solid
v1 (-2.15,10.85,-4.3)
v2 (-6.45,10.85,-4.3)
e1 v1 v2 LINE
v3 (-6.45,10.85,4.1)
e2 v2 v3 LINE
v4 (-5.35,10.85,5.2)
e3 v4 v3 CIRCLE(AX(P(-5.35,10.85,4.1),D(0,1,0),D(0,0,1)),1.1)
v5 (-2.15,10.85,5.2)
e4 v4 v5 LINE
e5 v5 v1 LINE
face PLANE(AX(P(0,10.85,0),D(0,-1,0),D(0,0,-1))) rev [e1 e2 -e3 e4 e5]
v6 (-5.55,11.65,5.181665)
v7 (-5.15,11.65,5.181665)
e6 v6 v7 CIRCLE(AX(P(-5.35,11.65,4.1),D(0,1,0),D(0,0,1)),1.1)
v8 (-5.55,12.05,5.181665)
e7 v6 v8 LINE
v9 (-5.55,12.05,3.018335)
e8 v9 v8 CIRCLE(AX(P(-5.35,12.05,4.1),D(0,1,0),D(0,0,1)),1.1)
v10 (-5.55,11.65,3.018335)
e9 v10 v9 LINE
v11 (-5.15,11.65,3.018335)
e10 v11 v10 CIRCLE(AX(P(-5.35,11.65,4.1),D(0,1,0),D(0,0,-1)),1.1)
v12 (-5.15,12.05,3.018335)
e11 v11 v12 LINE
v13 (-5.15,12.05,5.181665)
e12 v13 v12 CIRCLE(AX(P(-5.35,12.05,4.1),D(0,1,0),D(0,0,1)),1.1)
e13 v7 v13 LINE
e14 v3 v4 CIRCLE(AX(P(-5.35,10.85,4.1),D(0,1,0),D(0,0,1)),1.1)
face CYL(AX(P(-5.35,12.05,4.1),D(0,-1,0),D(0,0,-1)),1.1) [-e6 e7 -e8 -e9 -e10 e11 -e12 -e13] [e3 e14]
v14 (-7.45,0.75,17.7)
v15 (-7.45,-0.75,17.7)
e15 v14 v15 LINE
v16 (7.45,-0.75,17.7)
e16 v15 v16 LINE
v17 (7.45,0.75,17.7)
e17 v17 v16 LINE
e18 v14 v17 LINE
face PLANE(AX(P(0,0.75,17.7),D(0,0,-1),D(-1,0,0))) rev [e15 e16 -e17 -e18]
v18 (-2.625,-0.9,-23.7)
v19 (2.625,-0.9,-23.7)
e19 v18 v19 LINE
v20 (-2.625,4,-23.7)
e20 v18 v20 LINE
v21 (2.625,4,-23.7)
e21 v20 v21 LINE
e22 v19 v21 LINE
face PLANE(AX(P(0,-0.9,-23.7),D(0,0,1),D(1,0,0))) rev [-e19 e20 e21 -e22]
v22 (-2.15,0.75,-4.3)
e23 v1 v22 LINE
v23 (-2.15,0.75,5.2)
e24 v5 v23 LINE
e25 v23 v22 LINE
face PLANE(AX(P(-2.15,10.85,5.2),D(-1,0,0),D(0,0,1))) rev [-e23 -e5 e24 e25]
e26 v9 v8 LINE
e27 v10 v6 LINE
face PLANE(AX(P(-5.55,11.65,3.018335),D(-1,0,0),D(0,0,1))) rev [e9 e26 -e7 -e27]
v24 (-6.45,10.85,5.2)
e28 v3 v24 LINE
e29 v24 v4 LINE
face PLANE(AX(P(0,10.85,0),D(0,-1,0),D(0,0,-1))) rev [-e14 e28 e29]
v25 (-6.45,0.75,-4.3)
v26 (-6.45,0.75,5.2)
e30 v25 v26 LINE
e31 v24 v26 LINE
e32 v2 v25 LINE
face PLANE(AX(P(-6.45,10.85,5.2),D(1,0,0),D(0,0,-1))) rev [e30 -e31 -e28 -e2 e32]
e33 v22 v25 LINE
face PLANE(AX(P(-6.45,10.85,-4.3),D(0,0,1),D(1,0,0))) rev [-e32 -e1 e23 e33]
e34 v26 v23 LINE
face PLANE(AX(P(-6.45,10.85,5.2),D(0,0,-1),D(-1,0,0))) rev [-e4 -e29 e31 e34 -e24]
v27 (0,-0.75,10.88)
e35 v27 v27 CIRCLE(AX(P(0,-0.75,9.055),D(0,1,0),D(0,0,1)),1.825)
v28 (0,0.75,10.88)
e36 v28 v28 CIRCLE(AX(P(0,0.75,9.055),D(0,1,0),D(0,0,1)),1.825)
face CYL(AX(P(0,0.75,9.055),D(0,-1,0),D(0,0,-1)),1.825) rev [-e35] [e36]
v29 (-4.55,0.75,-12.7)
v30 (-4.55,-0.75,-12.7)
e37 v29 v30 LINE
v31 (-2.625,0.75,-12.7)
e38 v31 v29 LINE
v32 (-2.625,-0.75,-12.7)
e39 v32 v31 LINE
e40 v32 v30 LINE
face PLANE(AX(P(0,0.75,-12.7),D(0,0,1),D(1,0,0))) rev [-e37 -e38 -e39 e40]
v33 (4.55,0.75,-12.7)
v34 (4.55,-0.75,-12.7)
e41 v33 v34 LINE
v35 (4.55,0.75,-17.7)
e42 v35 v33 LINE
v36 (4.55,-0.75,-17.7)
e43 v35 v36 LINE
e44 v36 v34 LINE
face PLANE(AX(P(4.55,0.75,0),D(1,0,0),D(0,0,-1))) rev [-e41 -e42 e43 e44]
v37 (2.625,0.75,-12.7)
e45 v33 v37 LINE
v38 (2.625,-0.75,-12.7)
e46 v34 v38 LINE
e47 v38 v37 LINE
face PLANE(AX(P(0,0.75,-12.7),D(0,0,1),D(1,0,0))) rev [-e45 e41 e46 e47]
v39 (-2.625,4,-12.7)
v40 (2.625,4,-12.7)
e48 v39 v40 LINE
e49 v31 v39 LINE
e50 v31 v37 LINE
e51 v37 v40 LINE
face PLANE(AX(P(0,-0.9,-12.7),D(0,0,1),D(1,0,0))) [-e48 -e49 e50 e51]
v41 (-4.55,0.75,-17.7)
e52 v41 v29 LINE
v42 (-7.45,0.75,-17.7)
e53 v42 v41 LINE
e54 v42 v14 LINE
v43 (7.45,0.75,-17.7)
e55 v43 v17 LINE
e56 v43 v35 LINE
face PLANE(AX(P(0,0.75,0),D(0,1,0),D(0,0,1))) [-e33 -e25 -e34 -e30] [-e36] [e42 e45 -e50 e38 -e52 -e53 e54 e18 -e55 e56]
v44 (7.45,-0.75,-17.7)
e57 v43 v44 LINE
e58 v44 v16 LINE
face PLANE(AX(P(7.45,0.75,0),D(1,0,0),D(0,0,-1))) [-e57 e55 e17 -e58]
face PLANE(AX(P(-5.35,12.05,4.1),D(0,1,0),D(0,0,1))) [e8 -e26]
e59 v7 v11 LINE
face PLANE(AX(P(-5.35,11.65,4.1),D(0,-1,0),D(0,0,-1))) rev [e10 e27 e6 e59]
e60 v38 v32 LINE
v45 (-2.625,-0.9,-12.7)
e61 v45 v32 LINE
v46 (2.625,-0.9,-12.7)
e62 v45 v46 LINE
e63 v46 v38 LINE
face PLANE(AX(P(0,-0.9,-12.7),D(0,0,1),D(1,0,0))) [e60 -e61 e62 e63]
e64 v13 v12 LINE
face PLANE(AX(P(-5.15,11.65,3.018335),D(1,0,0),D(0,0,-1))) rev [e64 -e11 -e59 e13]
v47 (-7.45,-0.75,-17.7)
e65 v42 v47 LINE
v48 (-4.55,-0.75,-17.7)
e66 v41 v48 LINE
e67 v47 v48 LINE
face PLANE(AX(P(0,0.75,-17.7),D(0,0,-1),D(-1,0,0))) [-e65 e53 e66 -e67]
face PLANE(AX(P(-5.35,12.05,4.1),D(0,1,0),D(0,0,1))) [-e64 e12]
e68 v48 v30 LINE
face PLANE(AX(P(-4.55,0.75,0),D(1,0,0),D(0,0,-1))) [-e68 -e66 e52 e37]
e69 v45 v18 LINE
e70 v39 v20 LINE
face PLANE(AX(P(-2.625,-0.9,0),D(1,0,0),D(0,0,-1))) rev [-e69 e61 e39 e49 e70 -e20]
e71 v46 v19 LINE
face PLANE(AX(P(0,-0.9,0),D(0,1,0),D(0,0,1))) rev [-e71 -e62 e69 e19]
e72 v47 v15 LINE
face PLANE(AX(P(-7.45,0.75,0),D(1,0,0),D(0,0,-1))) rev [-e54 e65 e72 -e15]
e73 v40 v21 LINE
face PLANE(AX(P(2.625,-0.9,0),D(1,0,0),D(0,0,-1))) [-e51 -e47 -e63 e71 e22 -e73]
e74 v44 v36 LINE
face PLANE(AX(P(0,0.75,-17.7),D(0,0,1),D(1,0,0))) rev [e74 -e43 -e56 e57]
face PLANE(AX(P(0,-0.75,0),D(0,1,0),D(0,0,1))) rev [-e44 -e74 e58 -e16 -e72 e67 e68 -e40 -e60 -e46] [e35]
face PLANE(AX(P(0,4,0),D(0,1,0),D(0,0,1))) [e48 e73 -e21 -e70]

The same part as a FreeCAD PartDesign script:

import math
import FreeCAD as App
import Part
import Sketcher

V = App.Vector


def add_polygon(sketch, points):
    """Adds a closed chain of lines whose ends are joined by coincident constraints."""
    first, n = sketch.GeometryCount, len(points)
    for a, b in zip(points, points[1:] + points[:1]):
        sketch.addGeometry(Part.LineSegment(App.Vector(*a, 0), App.Vector(*b, 0)), False)
    for i in range(n):
        sketch.addConstraint(Sketcher.Constraint("Coincident", first + i, 2, first + (i + 1) % n, 1))

doc = App.newDocument("Part")
params = doc.addObject("Spreadsheet::Sheet", "Params")
for row, (alias, value) in enumerate([
    ("sketch1_diameter", "3.65 mm"),
    ("sketch1_height", "5 mm"),
    ("sketch1_width", "2.9 mm"),
    ("sketch1_width2", "14.9 mm"),
    ("sketch1_height2", "35.4 mm"),
    ("pad1_length", "1.5 mm"),
    ("sketch2_height", "11 mm"),
    ("sketch2_width", "5.25 mm"),
    ("pad2_length", "4 mm"),
    ("pad2_length2", "0.9 mm"),
    ("sketch3_width", "4.3 mm"),
    ("sketch3_height", "9.5 mm"),
    ("pad3_length", "10.1 mm"),
    ("sketch4_diameter", "2.2 mm"),
    ("pad4_length", "1.2 mm"),
    ("sketch5_radius", "1.1 mm"),
    ("pocket1_length", "0.4 mm"),
], start=1):
    params.set(f"A{row}", alias)
    params.set(f"B{row}", "=" + value)
    params.setAlias(f"B{row}", alias)

body = doc.addObject("PartDesign::Body", "Body")

# Sketch on XZ plane
sketch1 = body.newObject("Sketcher::SketchObject", "Sketch")
sketch1.AttachmentSupport = (doc.getObject("XZ_Plane"), [""])
sketch1.MapMode = "FlatFace"
add_polygon(sketch1, [(-4.55, -12.7), (-4.55, -17.7), (-7.45, -17.7), (-7.45, 17.7), (7.45, 17.7), (7.45, -17.7), (4.55, -17.7), (4.55, -12.7)])  # lines 0-7
sketch1.addGeometry(Part.Circle(V(0, 9.055, 0), V(0, 0, 1), 1.825), False)  # 8
sketch1.addConstraint([
    Sketcher.Constraint("Vertical", 0),
    Sketcher.Constraint("Horizontal", 1),
    Sketcher.Constraint("Vertical", 2),
    Sketcher.Constraint("Horizontal", 3),
    Sketcher.Constraint("Vertical", 4),
    Sketcher.Constraint("Horizontal", 5),
    Sketcher.Constraint("Vertical", 6),
    Sketcher.Constraint("Horizontal", 7),
    Sketcher.Constraint("Symmetric", 1, 2, 3, 2, -1, 1),
    Sketcher.Constraint("Symmetric", 0, 2, 5, 2, -2),
    Sketcher.Constraint("PointOnObject", 8, 3, -2),
    Sketcher.Constraint("Diameter", 8, 3.65),
    Sketcher.Constraint("DistanceY", 0, 2, 0, 1, 5.0),
    Sketcher.Constraint("DistanceX", 1, 2, 1, 1, 2.9),
    Sketcher.Constraint("DistanceX", 3, 1, 3, 2, 14.9),
    Sketcher.Constraint("DistanceY", 2, 1, 2, 2, 35.4),
    Sketcher.Constraint("DistanceY", -1, 1, 8, 3, 9.055),
])
sketch1.setExpression("Constraints[19]", "Params.sketch1_diameter")
sketch1.setExpression("Constraints[20]", "Params.sketch1_height")
sketch1.setExpression("Constraints[21]", "Params.sketch1_width")
sketch1.setExpression("Constraints[22]", "Params.sketch1_width2")
sketch1.setExpression("Constraints[23]", "Params.sketch1_height2")
pad1 = body.newObject("PartDesign::Pad", "Pad")
pad1.Profile = sketch1
pad1.setExpression("Length", "Params.pad1_length")
pad1.Midplane = True

# Sketch on XZ plane
sketch2 = body.newObject("Sketcher::SketchObject", "Sketch001")
sketch2.AttachmentSupport = (doc.getObject("XZ_Plane"), [""])
sketch2.MapMode = "FlatFace"
add_polygon(sketch2, [(-2.625, -23.7), (-2.625, -12.7), (2.625, -12.7), (2.625, -23.7)])  # lines 0-3
sketch2.addConstraint([
    Sketcher.Constraint("Vertical", 0),
    Sketcher.Constraint("Horizontal", 1),
    Sketcher.Constraint("Vertical", 2),
    Sketcher.Constraint("Horizontal", 3),
    Sketcher.Constraint("DistanceY", 0, 1, 0, 2, 11.0),
    Sketcher.Constraint("DistanceX", 1, 1, 1, 2, 5.25),
    Sketcher.Constraint("DistanceY", 0, 2, -1, 1, 12.7),
    Sketcher.Constraint("DistanceX", 0, 2, -1, 1, 2.625),
])
sketch2.setExpression("Constraints[8]", "Params.sketch2_height")
sketch2.setExpression("Constraints[9]", "Params.sketch2_width")
pad2 = body.newObject("PartDesign::Pad", "Pad001")
pad2.Profile = sketch2
pad2.Type = "TwoLengths"
pad2.setExpression("Length", "Params.pad2_length")
pad2.setExpression("Length2", "Params.pad2_length2")
pad2.Reversed = True

# Sketch on XZ plane
sketch3 = body.newObject("Sketcher::SketchObject", "Sketch002")
sketch3.AttachmentSupport = (doc.getObject("XZ_Plane"), [""])
sketch3.MapMode = "FlatFace"
sketch3.AttachmentOffset = App.Placement(V(0, 0, -0.75), App.Rotation())
add_polygon(sketch3, [(-6.45, -4.3), (-6.45, 5.2), (-2.15, 5.2), (-2.15, -4.3)])  # lines 0-3
sketch3.addConstraint([
    Sketcher.Constraint("Vertical", 0),
    Sketcher.Constraint("Horizontal", 1),
    Sketcher.Constraint("Vertical", 2),
    Sketcher.Constraint("Horizontal", 3),
    Sketcher.Constraint("DistanceX", 1, 1, 1, 2, 4.3),
    Sketcher.Constraint("DistanceY", 0, 1, 0, 2, 9.5),
    Sketcher.Constraint("DistanceY", -1, 1, 0, 2, 5.2),
    Sketcher.Constraint("DistanceX", 0, 2, -1, 1, 6.45),
])
sketch3.setExpression("Constraints[8]", "Params.sketch3_width")
sketch3.setExpression("Constraints[9]", "Params.sketch3_height")
pad3 = body.newObject("PartDesign::Pad", "Pad002")
pad3.Profile = sketch3
pad3.setExpression("Length", "Params.pad3_length")
pad3.Reversed = True

# Sketch on XZ plane
sketch4 = body.newObject("Sketcher::SketchObject", "Sketch003")
sketch4.AttachmentSupport = (doc.getObject("XZ_Plane"), [""])
sketch4.MapMode = "FlatFace"
sketch4.AttachmentOffset = App.Placement(V(0, 0, -10.85), App.Rotation())
sketch4.addGeometry(Part.Circle(V(-5.35, 4.1, 0), V(0, 0, 1), 1.1), False)
sketch4.addConstraint([
    Sketcher.Constraint("Diameter", 0, 2.2),
    Sketcher.Constraint("DistanceY", -1, 1, 0, 3, 4.1),
    Sketcher.Constraint("DistanceX", 0, 3, -1, 1, 5.35),
])
sketch4.setExpression("Constraints[0]", "Params.sketch4_diameter")
pad4 = body.newObject("PartDesign::Pad", "Pad003")
pad4.Profile = sketch4
pad4.setExpression("Length", "Params.pad4_length")
pad4.Reversed = True

# Sketch on XZ plane
sketch5 = body.newObject("Sketcher::SketchObject", "Sketch004")
sketch5.AttachmentSupport = (doc.getObject("XZ_Plane"), [""])
sketch5.MapMode = "FlatFace"
sketch5.AttachmentOffset = App.Placement(V(0, 0, -12.05), App.Rotation())
sketch5.addGeometry([
    Part.LineSegment(V(-5.15, 5.181665, 0), V(-5.15, 3.018335, 0)),
    Part.ArcOfCircle(Part.Circle(V(-5.35, 4.1, 0), V(0, 0, 1), 1.1), math.radians(-100.475681), math.radians(-79.524319)),
    Part.LineSegment(V(-5.55, 3.018335, 0), V(-5.55, 5.181665, 0)),
    Part.ArcOfCircle(Part.Circle(V(-5.35, 4.1, 0), V(0, 0, 1), 1.1), math.radians(79.524319), math.radians(100.475681)),
], False)
sketch5.addConstraint([
    Sketcher.Constraint("Coincident", 0, 2, 1, 2),
    Sketcher.Constraint("Coincident", 1, 1, 2, 1),
    Sketcher.Constraint("Coincident", 2, 2, 3, 2),
    Sketcher.Constraint("Coincident", 3, 1, 0, 1),
    Sketcher.Constraint("Vertical", 0),
    Sketcher.Constraint("Vertical", 2),
    Sketcher.Constraint("Coincident", 3, 3, 1, 3),
    Sketcher.Constraint("Equal", 1, 3),
    Sketcher.Constraint("Horizontal", 0, 2, 1, 1),
    Sketcher.Constraint("Radius", 1, 1.1),
    Sketcher.Constraint("DistanceY", -1, 1, 1, 3, 4.1),
    Sketcher.Constraint("DistanceX", 3, 3, 0, 2, 0.2),
    Sketcher.Constraint("DistanceX", 1, 3, -1, 1, 5.35),
])
sketch5.setExpression("Constraints[9]", "Params.sketch5_radius")
pocket1 = body.newObject("PartDesign::Pocket", "Pocket")
pocket1.Profile = sketch5
pocket1.setExpression("Length", "Params.pocket1_length")
pocket1.Reversed = True

doc.recompute()
